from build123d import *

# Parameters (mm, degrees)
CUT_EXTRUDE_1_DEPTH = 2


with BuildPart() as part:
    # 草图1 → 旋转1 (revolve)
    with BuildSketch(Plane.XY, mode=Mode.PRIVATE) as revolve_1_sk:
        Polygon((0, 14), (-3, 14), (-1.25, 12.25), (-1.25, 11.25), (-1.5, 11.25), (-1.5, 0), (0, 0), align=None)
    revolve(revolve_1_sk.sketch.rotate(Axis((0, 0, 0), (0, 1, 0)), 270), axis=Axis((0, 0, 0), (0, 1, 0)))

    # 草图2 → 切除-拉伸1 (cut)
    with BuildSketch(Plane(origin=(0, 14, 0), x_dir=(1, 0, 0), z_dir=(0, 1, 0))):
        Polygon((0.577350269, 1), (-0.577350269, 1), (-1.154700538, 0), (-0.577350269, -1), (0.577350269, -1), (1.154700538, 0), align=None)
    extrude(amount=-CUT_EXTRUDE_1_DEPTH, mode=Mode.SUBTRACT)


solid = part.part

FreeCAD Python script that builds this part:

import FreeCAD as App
import Part
import Sketcher

V = App.Vector
Q = App.Units.Quantity


def add_polygon(sketch, points):
    """Adds a closed chain of lines whose ends are joined by coincident constraints."""
    first, n = sketch.GeometryCount, len(points)
    for a, b in zip(points, points[1:] + points[:1]):
        sketch.addGeometry(Part.LineSegment(App.Vector(*a, 0), App.Vector(*b, 0)), False)
    for i in range(n):
        sketch.addConstraint(Sketcher.Constraint("Coincident", first + i, 2, first + (i + 1) % n, 1))

doc = App.newDocument("Part")
body = doc.addObject("PartDesign::Body", "Body")

# Sketch on XY plane
sketch1 = body.newObject("Sketcher::SketchObject", "Sketch")
sketch1.AttachmentSupport = (doc.getObject("XY_Plane"), [""])
sketch1.MapMode = "FlatFace"
add_polygon(sketch1, [(0, 14), (-3, 14), (-1.25, 12.25), (-1.25, 11.25), (-1.5, 11.25), (-1.5, 0), (0, 0)])  # lines 0-6
sketch1.addConstraint([
    Sketcher.Constraint("Horizontal", 0),
    Sketcher.Constraint("Vertical", 2),
    Sketcher.Constraint("Horizontal", 3),
    Sketcher.Constraint("Vertical", 4),
    Sketcher.Constraint("Horizontal", 5),
    Sketcher.Constraint("Vertical", 6),
    Sketcher.Constraint("Coincident", 5, 2, -1, 1),
    Sketcher.Constraint("DistanceX", 0, 2, 0, 1, Q("3 mm")),
    Sketcher.Constraint("DistanceY", 2, 2, 2, 1, Q("1 mm")),
    Sketcher.Constraint("DistanceY", 6, 1, 6, 2, Q("14 mm")),
    Sketcher.Constraint("Angle", 1, Q("-45 deg")),
    Sketcher.Constraint("DistanceX", 5, 1, 5, 2, Q("1.5 mm")),
    Sketcher.Constraint("DistanceX", 3, 2, 3, 1, Q("0.25 mm")),
])
revolution = body.newObject("PartDesign::Revolution", "Revolution")
revolution.Profile = sketch1
revolution.ReferenceAxis = (sketch1, ["V_Axis"])
revolution.Angle = 360

# Sketch on XZ plane
sketch2 = body.newObject("Sketcher::SketchObject", "Sketch001")
sketch2.AttachmentSupport = (doc.getObject("XZ_Plane"), [""])
sketch2.MapMode = "FlatFace"
sketch2.AttachmentOffset = App.Placement(V(0, 0, -14), App.Rotation())
add_polygon(sketch2, [(0.6, -1), (-0.6, -1), (-1.2, 0), (-0.6, 1), (0.6, 1), (1.2, 0)])  # lines 0-5
sketch2.addConstraint([
    Sketcher.Constraint("Horizontal", 0),
    Sketcher.Constraint("Horizontal", 3),
    Sketcher.Constraint("Symmetric", 0, 2, 3, 2, -1, 1),
    Sketcher.Constraint("Symmetric", 1, 2, 4, 2, -1, 1),
    Sketcher.Constraint("PointOnObject", 1, 2, -1),
    Sketcher.Constraint("Parallel", 2, 5),
    Sketcher.Constraint("Vertical", 0, 2, 2, 2),
    Sketcher.Constraint("Angle", 1, Q("120 deg")),
    Sketcher.Constraint("DistanceY", 0, 2, -1, 1, Q("1 mm")),
    Sketcher.Constraint("DistanceX", 0, 2, 0, 1, Q("1.154701 mm")),
])
pocket1 = body.newObject("PartDesign::Pocket", "Pocket")
pocket1.Profile = sketch2
pocket1.Length = 2
pocket1.Reversed = True

doc.recompute()
